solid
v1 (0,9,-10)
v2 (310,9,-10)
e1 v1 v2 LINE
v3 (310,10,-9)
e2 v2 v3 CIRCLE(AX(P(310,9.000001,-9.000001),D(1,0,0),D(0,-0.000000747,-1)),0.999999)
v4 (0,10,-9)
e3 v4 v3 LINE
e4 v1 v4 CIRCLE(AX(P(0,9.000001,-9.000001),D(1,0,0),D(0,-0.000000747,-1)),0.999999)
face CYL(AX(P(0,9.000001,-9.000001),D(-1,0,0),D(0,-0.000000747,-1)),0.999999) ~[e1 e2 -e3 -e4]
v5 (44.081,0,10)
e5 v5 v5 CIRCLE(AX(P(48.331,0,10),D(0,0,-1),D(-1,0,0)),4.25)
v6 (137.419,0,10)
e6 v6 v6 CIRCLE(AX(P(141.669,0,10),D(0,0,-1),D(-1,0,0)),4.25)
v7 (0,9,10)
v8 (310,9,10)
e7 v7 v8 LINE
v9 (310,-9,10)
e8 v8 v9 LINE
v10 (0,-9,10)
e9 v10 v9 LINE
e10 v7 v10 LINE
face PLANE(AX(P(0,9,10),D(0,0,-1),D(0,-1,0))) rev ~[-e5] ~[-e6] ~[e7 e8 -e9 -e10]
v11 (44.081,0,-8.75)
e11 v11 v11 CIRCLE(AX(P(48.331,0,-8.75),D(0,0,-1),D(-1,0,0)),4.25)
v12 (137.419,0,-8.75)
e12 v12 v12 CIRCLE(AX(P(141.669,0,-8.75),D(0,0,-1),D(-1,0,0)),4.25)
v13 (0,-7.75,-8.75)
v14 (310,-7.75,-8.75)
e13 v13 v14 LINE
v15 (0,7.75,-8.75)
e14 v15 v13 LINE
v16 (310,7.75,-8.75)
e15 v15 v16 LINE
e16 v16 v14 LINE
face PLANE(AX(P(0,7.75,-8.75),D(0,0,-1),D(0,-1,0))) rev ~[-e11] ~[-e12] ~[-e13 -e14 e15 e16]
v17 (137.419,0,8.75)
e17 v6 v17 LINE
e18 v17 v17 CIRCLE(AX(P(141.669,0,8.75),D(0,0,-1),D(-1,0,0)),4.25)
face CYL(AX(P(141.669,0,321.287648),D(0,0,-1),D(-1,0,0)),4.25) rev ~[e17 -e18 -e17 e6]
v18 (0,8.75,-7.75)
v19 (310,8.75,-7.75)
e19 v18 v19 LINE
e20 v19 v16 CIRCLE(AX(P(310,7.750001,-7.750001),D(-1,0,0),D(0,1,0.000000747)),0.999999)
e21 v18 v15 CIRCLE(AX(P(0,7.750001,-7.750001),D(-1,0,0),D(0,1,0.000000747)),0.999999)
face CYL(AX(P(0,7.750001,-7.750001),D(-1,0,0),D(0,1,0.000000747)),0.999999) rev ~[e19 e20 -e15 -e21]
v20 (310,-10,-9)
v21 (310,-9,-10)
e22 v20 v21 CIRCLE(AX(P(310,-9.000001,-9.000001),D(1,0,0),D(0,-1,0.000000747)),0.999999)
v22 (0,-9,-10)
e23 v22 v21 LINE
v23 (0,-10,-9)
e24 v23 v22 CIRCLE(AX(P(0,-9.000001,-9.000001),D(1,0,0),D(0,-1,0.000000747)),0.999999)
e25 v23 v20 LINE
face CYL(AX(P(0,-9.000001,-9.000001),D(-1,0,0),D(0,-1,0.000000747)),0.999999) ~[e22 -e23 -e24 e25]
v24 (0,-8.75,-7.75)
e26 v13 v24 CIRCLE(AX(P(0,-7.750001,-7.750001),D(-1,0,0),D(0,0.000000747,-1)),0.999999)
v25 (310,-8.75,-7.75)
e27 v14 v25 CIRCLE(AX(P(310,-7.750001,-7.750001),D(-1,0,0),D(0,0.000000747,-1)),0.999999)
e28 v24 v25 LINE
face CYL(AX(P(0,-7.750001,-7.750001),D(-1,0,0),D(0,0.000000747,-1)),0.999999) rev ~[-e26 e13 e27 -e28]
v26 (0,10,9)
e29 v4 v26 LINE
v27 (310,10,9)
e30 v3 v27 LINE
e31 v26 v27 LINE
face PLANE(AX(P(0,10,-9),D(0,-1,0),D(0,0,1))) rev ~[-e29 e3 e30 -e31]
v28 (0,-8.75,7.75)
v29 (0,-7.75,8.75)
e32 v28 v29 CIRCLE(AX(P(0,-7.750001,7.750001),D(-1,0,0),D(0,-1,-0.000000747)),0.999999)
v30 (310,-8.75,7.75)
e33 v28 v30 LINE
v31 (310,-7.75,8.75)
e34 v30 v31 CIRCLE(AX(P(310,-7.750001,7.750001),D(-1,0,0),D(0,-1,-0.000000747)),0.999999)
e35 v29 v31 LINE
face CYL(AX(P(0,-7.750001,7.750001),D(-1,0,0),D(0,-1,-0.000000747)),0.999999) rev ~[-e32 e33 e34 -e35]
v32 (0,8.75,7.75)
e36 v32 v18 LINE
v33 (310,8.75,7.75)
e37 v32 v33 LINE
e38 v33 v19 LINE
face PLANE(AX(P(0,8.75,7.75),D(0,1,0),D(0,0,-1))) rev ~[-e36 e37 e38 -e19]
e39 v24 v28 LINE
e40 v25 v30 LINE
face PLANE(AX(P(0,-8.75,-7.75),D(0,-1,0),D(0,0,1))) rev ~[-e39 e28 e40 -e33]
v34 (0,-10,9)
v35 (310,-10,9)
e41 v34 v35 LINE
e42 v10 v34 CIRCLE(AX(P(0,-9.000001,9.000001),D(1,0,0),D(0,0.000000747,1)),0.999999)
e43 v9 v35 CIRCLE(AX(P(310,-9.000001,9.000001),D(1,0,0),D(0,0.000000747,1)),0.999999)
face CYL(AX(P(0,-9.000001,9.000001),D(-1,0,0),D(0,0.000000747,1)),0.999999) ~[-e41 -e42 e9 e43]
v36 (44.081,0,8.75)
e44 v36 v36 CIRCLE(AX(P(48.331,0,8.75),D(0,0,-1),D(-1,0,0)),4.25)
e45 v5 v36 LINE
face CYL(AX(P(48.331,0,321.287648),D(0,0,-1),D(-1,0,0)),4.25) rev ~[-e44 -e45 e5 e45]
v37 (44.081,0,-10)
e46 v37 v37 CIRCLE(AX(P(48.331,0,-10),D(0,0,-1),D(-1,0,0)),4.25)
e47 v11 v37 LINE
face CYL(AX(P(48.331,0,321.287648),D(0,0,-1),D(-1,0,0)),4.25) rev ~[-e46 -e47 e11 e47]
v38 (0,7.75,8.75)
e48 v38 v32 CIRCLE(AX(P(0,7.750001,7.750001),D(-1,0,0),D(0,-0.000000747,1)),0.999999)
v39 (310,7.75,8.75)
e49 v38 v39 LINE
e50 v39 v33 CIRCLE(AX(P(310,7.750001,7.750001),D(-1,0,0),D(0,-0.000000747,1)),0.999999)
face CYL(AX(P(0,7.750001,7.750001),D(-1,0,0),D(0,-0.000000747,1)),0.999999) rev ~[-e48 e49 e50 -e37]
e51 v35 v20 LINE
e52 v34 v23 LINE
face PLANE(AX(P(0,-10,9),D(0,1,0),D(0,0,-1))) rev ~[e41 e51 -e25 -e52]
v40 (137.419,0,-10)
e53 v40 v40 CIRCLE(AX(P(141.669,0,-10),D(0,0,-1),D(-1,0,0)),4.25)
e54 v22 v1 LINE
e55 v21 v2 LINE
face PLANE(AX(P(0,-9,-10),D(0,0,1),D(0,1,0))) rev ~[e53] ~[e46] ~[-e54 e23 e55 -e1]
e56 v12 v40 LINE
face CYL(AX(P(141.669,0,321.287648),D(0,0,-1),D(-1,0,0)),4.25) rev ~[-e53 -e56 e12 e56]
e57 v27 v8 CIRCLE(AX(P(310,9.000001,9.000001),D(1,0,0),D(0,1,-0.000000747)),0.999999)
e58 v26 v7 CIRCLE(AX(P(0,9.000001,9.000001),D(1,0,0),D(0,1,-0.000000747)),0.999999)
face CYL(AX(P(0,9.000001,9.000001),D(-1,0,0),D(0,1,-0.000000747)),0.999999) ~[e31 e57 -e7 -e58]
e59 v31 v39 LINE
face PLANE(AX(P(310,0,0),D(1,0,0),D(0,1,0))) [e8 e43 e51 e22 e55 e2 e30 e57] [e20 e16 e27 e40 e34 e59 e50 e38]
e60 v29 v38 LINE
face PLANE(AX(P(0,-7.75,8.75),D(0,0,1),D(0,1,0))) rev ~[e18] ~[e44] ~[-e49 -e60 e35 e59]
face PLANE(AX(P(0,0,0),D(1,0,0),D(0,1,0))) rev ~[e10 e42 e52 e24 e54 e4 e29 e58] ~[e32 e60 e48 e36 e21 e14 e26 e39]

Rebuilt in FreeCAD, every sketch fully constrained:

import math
import FreeCAD as App
import Part
import Sketcher

V = App.Vector
Q = App.Units.Quantity

doc = App.newDocument("Part")
body = doc.addObject("PartDesign::Body", "Body")

sketch1 = body.newObject("Sketcher::SketchObject", "Sketch")
sketch1.AttachmentSupport = (doc.getObject("YZ_Plane"), [""])
sketch1.MapMode = "FlatFace"
sketch1.addGeometry(Part.LineSegment(V(9, 10, 0), V(-9, 10, 0)), False)
sketch1.addGeometry(Part.ArcOfCircle(Part.Circle(V(-9, 9, 0), V(0, 0, 1), 1), math.radians(90), math.radians(180)), False)
sketch1.addGeometry(Part.LineSegment(V(-10, 9, 0), V(-10, -9, 0)), False)
sketch1.addGeometry(Part.ArcOfCircle(Part.Circle(V(-9, -9, 0), V(0, 0, 1), 1), math.radians(180), math.radians(270)), False)
sketch1.addGeometry(Part.LineSegment(V(-9, -10, 0), V(9, -10, 0)), False)
sketch1.addGeometry(Part.ArcOfCircle(Part.Circle(V(9, -9, 0), V(0, 0, 1), 1), math.radians(-90), math.radians(0)), False)
sketch1.addGeometry(Part.LineSegment(V(10, -9, 0), V(10, 9, 0)), False)
sketch1.addGeometry(Part.ArcOfCircle(Part.Circle(V(9, 9, 0), V(0, 0, 1), 1), math.radians(0), math.radians(90)), False)
sketch1.addGeometry(Part.LineSegment(V(-8.8, -7.8, 0), V(-8.8, 7.8, 0)), False)
sketch1.addGeometry(Part.ArcOfCircle(Part.Circle(V(-7.8, 7.8, 0), V(0, 0, 1), 1), math.radians(90), math.radians(180)), False)
sketch1.addGeometry(Part.LineSegment(V(-7.8, 8.8, 0), V(7.8, 8.8, 0)), False)
sketch1.addGeometry(Part.ArcOfCircle(Part.Circle(V(7.8, 7.8, 0), V(0, 0, 1), 1), math.radians(0), math.radians(90)), False)
sketch1.addGeometry(Part.LineSegment(V(8.8, 7.8, 0), V(8.8, -7.8, 0)), False)
sketch1.addGeometry(Part.ArcOfCircle(Part.Circle(V(7.8, -7.8, 0), V(0, 0, 1), 1), math.radians(-90), math.radians(0)), False)
sketch1.addGeometry(Part.LineSegment(V(7.8, -8.8, 0), V(-7.8, -8.8, 0)), False)
sketch1.addGeometry(Part.ArcOfCircle(Part.Circle(V(-7.8, -7.8, 0), V(0, 0, 1), 1), math.radians(180), math.radians(270)), False)
sketch1.addConstraint(Sketcher.Constraint("Tangent", 0, 2, 1, 1))
sketch1.addConstraint(Sketcher.Constraint("Tangent", 1, 2, 2, 1))
sketch1.addConstraint(Sketcher.Constraint("Tangent", 2, 2, 3, 1))
sketch1.addConstraint(Sketcher.Constraint("Tangent", 3, 2, 4, 1))
sketch1.addConstraint(Sketcher.Constraint("Tangent", 4, 2, 5, 1))
sketch1.addConstraint(Sketcher.Constraint("Tangent", 5, 2, 6, 1))
sketch1.addConstraint(Sketcher.Constraint("Tangent", 6, 2, 7, 1))
sketch1.addConstraint(Sketcher.Constraint("Tangent", 7, 2, 0, 1))
sketch1.addConstraint(Sketcher.Constraint("Tangent", 8, 2, 9, 2))
sketch1.addConstraint(Sketcher.Constraint("Tangent", 9, 1, 10, 1))
sketch1.addConstraint(Sketcher.Constraint("Tangent", 10, 2, 11, 2))
sketch1.addConstraint(Sketcher.Constraint("Tangent", 11, 1, 12, 1))
sketch1.addConstraint(Sketcher.Constraint("Tangent", 12, 2, 13, 2))
sketch1.addConstraint(Sketcher.Constraint("Tangent", 13, 1, 14, 1))
sketch1.addConstraint(Sketcher.Constraint("Tangent", 14, 2, 15, 2))
sketch1.addConstraint(Sketcher.Constraint("Tangent", 15, 1, 8, 1))
sketch1.addConstraint(Sketcher.Constraint("Horizontal", 0))
sketch1.addConstraint(Sketcher.Constraint("Vertical", 2))
sketch1.addConstraint(Sketcher.Constraint("Horizontal", 4))
sketch1.addConstraint(Sketcher.Constraint("Vertical", 6))
sketch1.addConstraint(Sketcher.Constraint("Vertical", 8))
sketch1.addConstraint(Sketcher.Constraint("Horizontal", 10))
sketch1.addConstraint(Sketcher.Constraint("Vertical", 12))
sketch1.addConstraint(Sketcher.Constraint("Horizontal", 14))
sketch1.addConstraint(Sketcher.Constraint("Equal", 1, 3))
sketch1.addConstraint(Sketcher.Constraint("Equal", 3, 5))
sketch1.addConstraint(Sketcher.Constraint("Equal", 5, 7))
sketch1.addConstraint(Sketcher.Constraint("Equal", 7, 9))
sketch1.addConstraint(Sketcher.Constraint("Equal", 9, 11))
sketch1.addConstraint(Sketcher.Constraint("Equal", 11, 13))
sketch1.addConstraint(Sketcher.Constraint("Equal", 13, 15))
sketch1.addConstraint(Sketcher.Constraint("Symmetric", 1, 3, 5, 3, -1, 1))
sketch1.addConstraint(Sketcher.Constraint("Symmetric", 9, 3, 13, 3, -1, 1))
sketch1.addConstraint(Sketcher.Constraint("Equal", 4, 2))
sketch1.addConstraint(Sketcher.Constraint("Equal", 14, 8))
sketch1.addConstraint(Sketcher.Constraint("Radius", 1, Q("0.999999 mm")))
sketch1.addConstraint(Sketcher.Constraint("DistanceX", 0, 2, 0, 1, Q("18 mm")))
sketch1.addConstraint(Sketcher.Constraint("DistanceX", 10, 1, 10, 2, Q("15.5 mm")))
pad1 = body.newObject("PartDesign::Pad", "Pad")
pad1.Profile = sketch1
pad1.Length = 310

sketch2 = body.newObject("Sketcher::SketchObject", "Sketch001")
sketch2.AttachmentSupport = (doc.getObject("XY_Plane"), [""])
sketch2.MapMode = "FlatFace"
sketch2.AttachmentOffset = App.Placement(V(0, 0, 10), App.Rotation())
sketch2.addGeometry(Part.Circle(V(48.3, 0, 0), V(0, 0, 1), 4.2), False)
sketch2.addGeometry(Part.Circle(V(141.7, 0, 0), V(0, 0, 1), 4.2), False)
sketch2.addConstraint(Sketcher.Constraint("Equal", 0, 1))
sketch2.addConstraint(Sketcher.Constraint("PointOnObject", 0, 3, -1))
sketch2.addConstraint(Sketcher.Constraint("PointOnObject", 1, 3, -1))
sketch2.addConstraint(Sketcher.Constraint("Diameter", 0, Q("8.5 mm")))
sketch2.addConstraint(Sketcher.Constraint("DistanceX", -1, 1, 0, 3, Q("48.331 mm")))
sketch2.addConstraint(Sketcher.Constraint("DistanceX", -1, 1, 1, 3, Q("141.669 mm")))
doc.recompute()
hole = body.newObject("PartDesign::Hole", "Hole")
hole.Profile = sketch2
hole.ThreadType = "None"
hole.Diameter = 8.5
hole.DepthType = "ThroughAll"

doc.recompute()
